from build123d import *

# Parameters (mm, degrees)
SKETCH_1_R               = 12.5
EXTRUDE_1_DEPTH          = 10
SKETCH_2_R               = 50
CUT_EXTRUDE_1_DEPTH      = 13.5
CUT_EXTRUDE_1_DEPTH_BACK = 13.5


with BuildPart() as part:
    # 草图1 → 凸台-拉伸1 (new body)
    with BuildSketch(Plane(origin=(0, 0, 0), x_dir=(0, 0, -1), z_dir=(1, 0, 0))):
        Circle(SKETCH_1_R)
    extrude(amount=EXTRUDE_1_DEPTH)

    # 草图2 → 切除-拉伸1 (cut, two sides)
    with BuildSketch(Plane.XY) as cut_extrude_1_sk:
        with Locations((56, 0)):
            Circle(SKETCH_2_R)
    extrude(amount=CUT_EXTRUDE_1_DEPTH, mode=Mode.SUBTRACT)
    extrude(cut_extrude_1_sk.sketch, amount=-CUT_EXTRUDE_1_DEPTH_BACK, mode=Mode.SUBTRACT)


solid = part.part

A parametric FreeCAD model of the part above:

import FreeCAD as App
import Part
import Sketcher
Q = App.Units.Quantity

doc = App.newDocument("Part")
body = doc.addObject("PartDesign::Body", "Body")

# Sketch on YZ plane
sketch1 = body.newObject("Sketcher::SketchObject", "Sketch")
sketch1.AttachmentSupport = (doc.getObject("YZ_Plane"), [""])
sketch1.MapMode = "FlatFace"
sketch1.addGeometry(Part.Circle(App.Vector(0, 0, 0), App.Vector(0, 0, 1), 12), False)
sketch1.addConstraint(Sketcher.Constraint("Coincident", 0, 3, -1, 1))
sketch1.addConstraint(Sketcher.Constraint("Diameter", 0, Q("25 mm")))
pad1 = body.newObject("PartDesign::Pad", "Pad")
pad1.Profile = sketch1
pad1.Length = 10

# Sketch on XY plane
sketch2 = body.newObject("Sketcher::SketchObject", "Sketch001")
sketch2.AttachmentSupport = (doc.getObject("XY_Plane"), [""])
sketch2.MapMode = "FlatFace"
sketch2.addGeometry(Part.Circle(App.Vector(56, 0, 0), App.Vector(0, 0, 1), 50), False)
sketch2.addConstraint(Sketcher.Constraint("PointOnObject", 0, 3, -1))
sketch2.addConstraint(Sketcher.Constraint("Diameter", 0, Q("100 mm")))
sketch2.addConstraint(Sketcher.Constraint("DistanceX", -1, 1, 0, 3, Q("56 mm")))
pocket1 = body.newObject("PartDesign::Pocket", "Pocket")
pocket1.Profile = sketch2
pocket1.Type = "ThroughAll"
pocket1.Midplane = True

doc.recompute()
